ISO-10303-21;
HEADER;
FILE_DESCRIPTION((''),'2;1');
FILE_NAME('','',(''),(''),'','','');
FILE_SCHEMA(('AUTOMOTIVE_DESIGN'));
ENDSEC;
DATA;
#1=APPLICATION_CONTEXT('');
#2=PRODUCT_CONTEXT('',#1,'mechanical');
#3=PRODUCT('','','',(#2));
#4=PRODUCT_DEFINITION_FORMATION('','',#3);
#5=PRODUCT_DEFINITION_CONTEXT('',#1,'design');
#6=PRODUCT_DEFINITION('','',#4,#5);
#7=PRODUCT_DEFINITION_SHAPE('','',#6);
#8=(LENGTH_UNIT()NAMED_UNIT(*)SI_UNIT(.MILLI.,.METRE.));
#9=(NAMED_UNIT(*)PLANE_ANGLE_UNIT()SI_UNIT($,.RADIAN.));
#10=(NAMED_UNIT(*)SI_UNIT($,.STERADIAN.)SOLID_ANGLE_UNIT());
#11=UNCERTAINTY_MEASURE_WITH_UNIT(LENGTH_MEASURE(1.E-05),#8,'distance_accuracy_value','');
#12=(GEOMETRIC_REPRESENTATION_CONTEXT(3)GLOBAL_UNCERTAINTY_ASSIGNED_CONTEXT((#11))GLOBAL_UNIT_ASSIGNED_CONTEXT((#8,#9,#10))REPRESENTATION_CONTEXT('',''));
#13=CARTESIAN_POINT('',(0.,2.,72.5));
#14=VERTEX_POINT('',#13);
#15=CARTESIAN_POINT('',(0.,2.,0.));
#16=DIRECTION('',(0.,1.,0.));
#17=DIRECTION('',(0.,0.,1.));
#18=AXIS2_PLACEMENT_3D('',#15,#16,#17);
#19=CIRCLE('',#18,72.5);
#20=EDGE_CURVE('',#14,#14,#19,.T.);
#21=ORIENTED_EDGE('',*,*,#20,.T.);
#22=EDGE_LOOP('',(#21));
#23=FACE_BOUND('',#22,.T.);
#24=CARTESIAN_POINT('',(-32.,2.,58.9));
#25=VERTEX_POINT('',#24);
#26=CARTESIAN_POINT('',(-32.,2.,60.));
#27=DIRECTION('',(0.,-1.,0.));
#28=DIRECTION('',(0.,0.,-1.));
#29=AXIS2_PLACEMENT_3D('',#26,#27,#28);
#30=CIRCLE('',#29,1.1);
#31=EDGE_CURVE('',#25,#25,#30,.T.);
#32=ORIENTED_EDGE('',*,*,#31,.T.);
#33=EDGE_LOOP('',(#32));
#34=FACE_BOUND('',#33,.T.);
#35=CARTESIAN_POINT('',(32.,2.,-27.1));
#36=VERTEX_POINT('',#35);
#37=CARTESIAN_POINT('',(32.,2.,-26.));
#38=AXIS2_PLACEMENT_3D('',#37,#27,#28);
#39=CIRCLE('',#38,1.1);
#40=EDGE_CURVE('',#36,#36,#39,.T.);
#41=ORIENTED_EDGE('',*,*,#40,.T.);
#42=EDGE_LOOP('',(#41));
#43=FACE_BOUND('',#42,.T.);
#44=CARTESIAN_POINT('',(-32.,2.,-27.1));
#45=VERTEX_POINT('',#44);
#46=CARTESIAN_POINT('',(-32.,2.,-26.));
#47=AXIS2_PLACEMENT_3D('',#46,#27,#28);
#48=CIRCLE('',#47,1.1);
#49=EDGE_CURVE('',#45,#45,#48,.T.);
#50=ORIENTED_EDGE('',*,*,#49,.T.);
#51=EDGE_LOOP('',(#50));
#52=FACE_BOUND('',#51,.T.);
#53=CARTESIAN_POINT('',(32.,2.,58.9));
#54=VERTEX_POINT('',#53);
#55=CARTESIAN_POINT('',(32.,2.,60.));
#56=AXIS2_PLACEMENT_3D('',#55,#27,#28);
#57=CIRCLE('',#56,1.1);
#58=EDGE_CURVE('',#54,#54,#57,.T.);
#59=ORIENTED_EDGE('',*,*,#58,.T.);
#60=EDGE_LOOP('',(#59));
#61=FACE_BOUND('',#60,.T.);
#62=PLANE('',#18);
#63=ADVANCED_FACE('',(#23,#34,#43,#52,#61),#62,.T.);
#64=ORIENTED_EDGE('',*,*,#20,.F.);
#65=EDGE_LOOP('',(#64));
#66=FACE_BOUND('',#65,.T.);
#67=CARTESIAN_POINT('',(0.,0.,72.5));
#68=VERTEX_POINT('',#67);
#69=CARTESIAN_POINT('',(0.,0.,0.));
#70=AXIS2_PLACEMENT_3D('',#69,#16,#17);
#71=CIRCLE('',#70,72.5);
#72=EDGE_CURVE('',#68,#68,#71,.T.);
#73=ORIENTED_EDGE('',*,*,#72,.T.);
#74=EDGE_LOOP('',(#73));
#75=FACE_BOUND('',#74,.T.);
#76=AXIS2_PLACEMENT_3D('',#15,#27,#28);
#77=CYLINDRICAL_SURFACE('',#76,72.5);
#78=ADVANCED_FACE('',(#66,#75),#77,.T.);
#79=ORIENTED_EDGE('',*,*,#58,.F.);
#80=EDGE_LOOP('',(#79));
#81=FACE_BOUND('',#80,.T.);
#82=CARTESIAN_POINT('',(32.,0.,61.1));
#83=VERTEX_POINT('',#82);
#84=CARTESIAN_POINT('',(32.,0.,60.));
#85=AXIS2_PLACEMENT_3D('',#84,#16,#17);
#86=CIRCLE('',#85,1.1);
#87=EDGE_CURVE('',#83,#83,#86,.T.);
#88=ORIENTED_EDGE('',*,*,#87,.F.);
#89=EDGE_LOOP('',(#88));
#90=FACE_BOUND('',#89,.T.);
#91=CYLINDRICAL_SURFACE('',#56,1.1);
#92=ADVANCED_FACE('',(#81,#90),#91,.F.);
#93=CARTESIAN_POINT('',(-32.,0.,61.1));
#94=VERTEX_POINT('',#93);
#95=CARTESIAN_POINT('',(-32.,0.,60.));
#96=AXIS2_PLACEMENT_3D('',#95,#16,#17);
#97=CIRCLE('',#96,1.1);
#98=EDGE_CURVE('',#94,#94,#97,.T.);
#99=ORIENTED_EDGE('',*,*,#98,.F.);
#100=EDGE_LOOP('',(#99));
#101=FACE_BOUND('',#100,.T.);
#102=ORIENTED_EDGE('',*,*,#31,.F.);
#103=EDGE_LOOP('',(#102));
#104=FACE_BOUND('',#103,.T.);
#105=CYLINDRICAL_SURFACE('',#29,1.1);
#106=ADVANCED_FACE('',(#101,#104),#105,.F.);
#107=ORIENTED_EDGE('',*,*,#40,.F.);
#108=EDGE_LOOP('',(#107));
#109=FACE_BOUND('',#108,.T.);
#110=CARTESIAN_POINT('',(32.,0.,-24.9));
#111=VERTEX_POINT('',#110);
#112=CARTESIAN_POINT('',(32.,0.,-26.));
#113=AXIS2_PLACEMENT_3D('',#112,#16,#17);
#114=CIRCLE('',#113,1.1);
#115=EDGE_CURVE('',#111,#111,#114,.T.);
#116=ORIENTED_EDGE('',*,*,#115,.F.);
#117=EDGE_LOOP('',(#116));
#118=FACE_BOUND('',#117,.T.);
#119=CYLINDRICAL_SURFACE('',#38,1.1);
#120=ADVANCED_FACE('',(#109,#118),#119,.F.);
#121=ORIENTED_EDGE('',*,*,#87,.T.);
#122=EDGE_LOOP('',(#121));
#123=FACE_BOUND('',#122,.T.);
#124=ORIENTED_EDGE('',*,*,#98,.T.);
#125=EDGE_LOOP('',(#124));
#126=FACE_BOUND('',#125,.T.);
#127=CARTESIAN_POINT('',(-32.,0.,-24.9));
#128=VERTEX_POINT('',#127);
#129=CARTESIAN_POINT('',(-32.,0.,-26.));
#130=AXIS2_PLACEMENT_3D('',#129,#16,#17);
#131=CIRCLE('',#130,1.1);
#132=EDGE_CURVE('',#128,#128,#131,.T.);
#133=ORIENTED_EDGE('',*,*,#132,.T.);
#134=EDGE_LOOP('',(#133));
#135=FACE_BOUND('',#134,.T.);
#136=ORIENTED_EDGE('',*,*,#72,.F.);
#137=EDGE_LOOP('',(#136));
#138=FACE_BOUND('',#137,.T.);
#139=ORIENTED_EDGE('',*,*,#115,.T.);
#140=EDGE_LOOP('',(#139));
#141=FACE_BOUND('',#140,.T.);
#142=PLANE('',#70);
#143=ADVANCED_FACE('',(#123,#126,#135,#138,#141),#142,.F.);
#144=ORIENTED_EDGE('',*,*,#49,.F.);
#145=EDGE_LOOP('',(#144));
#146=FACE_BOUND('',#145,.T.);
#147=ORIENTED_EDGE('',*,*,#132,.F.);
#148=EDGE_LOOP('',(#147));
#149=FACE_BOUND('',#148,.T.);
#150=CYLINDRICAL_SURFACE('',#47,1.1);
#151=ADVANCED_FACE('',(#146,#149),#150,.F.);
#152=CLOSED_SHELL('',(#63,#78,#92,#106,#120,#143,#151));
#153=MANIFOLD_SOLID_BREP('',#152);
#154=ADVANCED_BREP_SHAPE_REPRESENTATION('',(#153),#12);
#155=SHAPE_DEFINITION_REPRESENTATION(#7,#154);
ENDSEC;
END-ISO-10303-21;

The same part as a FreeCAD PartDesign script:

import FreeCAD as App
import Part
import Sketcher

V = App.Vector

doc = App.newDocument("Part")
body = doc.addObject("PartDesign::Body", "Body")

# Sketch on XZ plane
sketch1 = body.newObject("Sketcher::SketchObject", "Sketch")
sketch1.AttachmentSupport = (doc.getObject("XZ_Plane"), [""])
sketch1.MapMode = "FlatFace"
sketch1.addGeometry(Part.Circle(V(0, 0, 0), V(0, 0, 1), 72), False)
sketch1.addConstraint([
    Sketcher.Constraint("Coincident", 0, 3, -1, 1),
    Sketcher.Constraint("Diameter", 0, 145.0),
])
pad1 = body.newObject("PartDesign::Pad", "Pad")
pad1.Profile = sketch1
pad1.Length = 2
pad1.Reversed = True

# Sketch on XZ plane
sketch2 = body.newObject("Sketcher::SketchObject", "Sketch001")
sketch2.AttachmentSupport = (doc.getObject("XZ_Plane"), [""])
sketch2.MapMode = "FlatFace"
sketch2.addGeometry([
    Part.Circle(V(32, 60, 0), V(0, 0, 1), 1.1),
    Part.Circle(V(-32, 60, 0), V(0, 0, 1), 1.1),
    Part.Circle(V(-32, -26, 0), V(0, 0, 1), 1.1),
    Part.Circle(V(32, -26, 0), V(0, 0, 1), 1.1),
], False)
sketch2.addConstraint([
    Sketcher.Constraint("Equal", 0, 1),
    Sketcher.Constraint("Equal", 1, 2),
    Sketcher.Constraint("Equal", 2, 3),
    Sketcher.Constraint("Symmetric", 0, 3, 1, 3, -2),
    Sketcher.Constraint("Symmetric", 2, 3, 3, 3, -2),
    Sketcher.Constraint("Vertical", 1, 3, 2, 3),
    Sketcher.Constraint("Diameter", 0, 2.2),
    Sketcher.Constraint("DistanceX", -1, 1, 0, 3, 32.0),
    Sketcher.Constraint("DistanceY", -1, 1, 0, 3, 60.0),
    Sketcher.Constraint("DistanceY", 2, 3, -1, 1, 26.0),
])
pocket1 = body.newObject("PartDesign::Pocket", "Pocket")
pocket1.Profile = sketch2
pocket1.Type = "ThroughAll"
pocket1.Midplane = True

doc.recompute()
